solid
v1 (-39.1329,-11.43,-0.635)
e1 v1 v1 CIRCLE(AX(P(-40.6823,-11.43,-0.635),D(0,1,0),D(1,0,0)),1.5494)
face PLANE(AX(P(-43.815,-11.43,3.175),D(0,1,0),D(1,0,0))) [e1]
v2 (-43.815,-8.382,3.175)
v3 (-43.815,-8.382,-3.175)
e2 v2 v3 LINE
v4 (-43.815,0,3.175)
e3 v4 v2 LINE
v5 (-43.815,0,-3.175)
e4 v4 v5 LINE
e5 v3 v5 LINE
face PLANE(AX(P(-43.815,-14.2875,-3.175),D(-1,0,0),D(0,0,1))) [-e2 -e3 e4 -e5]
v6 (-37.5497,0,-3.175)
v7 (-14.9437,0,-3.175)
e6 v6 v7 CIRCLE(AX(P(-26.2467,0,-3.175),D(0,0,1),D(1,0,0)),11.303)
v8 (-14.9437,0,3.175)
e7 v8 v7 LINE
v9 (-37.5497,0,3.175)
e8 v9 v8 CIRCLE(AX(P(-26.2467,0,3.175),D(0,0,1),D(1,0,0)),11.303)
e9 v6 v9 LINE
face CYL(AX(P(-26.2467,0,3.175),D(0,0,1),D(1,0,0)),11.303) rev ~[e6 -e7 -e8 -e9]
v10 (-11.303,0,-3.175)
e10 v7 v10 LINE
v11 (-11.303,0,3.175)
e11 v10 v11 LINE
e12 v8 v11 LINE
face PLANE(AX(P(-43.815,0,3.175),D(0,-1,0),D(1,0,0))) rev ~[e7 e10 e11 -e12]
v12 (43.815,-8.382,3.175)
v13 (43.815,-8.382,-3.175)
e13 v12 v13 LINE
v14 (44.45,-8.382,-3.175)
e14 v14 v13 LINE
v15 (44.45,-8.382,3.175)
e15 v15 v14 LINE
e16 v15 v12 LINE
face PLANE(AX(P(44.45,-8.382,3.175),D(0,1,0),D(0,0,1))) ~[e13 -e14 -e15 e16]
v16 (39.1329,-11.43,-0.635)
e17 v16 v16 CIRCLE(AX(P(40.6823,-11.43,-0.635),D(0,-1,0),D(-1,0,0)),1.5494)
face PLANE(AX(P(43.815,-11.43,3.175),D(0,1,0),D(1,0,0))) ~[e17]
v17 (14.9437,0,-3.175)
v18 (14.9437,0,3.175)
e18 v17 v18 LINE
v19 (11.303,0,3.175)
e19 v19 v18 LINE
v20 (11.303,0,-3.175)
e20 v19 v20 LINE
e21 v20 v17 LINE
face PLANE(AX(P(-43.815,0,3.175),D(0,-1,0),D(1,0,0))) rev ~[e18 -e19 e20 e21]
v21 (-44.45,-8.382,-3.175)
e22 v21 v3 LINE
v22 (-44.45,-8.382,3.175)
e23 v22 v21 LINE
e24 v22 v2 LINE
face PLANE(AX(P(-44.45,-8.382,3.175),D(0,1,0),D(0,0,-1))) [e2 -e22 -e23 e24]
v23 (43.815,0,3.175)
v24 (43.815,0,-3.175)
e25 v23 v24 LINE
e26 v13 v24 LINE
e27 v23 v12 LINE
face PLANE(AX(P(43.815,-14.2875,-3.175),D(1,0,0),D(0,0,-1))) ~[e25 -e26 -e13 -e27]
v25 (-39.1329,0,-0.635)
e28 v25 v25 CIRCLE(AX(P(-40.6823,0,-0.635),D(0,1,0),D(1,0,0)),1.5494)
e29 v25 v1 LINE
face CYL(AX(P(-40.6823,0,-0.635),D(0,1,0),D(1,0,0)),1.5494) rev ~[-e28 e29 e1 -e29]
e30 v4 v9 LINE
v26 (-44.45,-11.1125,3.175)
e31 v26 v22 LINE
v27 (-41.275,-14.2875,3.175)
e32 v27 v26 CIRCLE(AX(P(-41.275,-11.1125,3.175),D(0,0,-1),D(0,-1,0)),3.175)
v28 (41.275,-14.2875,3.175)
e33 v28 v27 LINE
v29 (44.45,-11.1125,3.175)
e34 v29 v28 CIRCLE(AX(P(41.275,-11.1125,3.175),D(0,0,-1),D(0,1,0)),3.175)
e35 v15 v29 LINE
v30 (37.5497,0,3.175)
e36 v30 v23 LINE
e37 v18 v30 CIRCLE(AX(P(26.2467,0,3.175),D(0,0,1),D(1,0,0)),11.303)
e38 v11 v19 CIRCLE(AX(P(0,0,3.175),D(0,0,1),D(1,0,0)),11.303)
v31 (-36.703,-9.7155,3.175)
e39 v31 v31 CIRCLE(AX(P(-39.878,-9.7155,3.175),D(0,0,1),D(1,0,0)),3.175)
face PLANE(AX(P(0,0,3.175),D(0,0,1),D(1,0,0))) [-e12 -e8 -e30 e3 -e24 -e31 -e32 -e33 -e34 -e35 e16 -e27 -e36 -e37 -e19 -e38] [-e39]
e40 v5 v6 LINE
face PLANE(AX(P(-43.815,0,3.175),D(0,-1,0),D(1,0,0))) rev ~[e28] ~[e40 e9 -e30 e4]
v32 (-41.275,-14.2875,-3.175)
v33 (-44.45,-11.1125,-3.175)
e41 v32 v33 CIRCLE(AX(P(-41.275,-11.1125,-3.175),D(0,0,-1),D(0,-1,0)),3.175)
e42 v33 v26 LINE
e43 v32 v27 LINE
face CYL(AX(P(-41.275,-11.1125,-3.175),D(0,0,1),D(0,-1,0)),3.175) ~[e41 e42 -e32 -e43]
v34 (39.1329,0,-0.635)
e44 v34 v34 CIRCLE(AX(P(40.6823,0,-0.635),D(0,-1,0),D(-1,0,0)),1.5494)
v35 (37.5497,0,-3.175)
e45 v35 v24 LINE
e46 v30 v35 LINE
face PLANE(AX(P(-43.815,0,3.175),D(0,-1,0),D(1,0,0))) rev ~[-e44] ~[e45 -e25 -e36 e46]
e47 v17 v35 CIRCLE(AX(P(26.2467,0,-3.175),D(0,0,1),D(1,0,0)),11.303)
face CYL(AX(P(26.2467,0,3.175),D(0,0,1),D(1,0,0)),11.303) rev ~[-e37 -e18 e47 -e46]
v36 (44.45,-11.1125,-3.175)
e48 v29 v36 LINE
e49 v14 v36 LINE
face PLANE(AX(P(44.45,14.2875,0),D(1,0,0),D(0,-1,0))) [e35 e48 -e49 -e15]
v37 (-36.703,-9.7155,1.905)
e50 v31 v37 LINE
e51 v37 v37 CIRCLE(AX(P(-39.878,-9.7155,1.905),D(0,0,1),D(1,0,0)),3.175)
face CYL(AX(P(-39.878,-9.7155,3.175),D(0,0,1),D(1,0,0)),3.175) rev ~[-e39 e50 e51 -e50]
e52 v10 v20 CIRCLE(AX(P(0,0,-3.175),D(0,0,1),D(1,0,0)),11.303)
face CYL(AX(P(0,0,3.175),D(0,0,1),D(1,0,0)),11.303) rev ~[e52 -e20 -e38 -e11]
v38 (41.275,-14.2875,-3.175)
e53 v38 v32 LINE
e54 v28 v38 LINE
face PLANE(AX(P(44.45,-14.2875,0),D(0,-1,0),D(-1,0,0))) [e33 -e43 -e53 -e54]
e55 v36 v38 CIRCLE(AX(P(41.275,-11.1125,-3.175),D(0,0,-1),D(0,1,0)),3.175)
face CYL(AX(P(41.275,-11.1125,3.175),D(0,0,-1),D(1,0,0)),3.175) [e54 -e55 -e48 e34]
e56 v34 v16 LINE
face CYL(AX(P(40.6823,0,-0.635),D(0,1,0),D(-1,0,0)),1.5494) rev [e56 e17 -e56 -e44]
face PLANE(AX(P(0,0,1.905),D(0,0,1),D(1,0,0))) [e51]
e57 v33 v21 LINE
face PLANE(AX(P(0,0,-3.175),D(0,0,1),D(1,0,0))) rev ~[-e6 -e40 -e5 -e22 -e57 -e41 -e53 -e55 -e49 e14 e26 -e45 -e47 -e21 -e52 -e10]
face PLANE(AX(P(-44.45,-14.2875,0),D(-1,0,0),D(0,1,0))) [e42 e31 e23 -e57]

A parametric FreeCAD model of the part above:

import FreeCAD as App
import Part
import Sketcher
Q = App.Units.Quantity


def edges_at(feature, points):
    """Names of the edges that pass closest to the given points."""
    edges = feature.Shape.Edges
    near = lambda p: min(range(len(edges)), key=lambda i: edges[i].distToShape(Part.Vertex(*p))[0])
    return sorted({f"Edge{near(p) + 1}" for p in points})

doc = App.newDocument("Part")
body = doc.addObject("PartDesign::Body", "Body")

sketch1 = body.newObject("Sketcher::SketchObject", "Sketch")
sketch1.AttachmentSupport = (doc.getObject("XY_Plane"), [""])
sketch1.MapMode = "FlatFace"
sketch1.addGeometry([
    Part.LineSegment(App.Vector(44.45, 14.2875, 0), App.Vector(-44.45, 14.2875, 0)),
    Part.LineSegment(App.Vector(-44.45, 14.2875, 0), App.Vector(-44.45, -14.2875, 0)),
    Part.LineSegment(App.Vector(-44.45, -14.2875, 0), App.Vector(44.45, -14.2875, 0)),
    Part.LineSegment(App.Vector(44.45, -14.2875, 0), App.Vector(44.45, 14.2875, 0)),
], False)
sketch1.addConstraint([
    Sketcher.Constraint("Coincident", 0, 2, 1, 1),
    Sketcher.Constraint("Coincident", 1, 2, 2, 1),
    Sketcher.Constraint("Coincident", 2, 2, 3, 1),
    Sketcher.Constraint("Coincident", 3, 2, 0, 1),
    Sketcher.Constraint("Horizontal", 0),
    Sketcher.Constraint("Vertical", 1),
    Sketcher.Constraint("Horizontal", 2),
    Sketcher.Constraint("Vertical", 3),
    Sketcher.Constraint("Symmetric", 0, 2, 2, 2, -1, 1),
    Sketcher.Constraint("DistanceX", 0, 2, 0, 1, Q("3.5 in")),
    Sketcher.Constraint("DistanceY", 1, 2, 1, 1, Q("1.125 in")),
])
pad1 = body.newObject("PartDesign::Pad", "Pad")
pad1.Profile = sketch1
pad1.Length = Q("0.25 in")
pad1.Midplane = True

sketch2 = body.newObject("Sketcher::SketchObject", "Sketch001")
sketch2.AttachmentSupport = (doc.getObject("YZ_Plane"), [""])
sketch2.MapMode = "FlatFace"
sketch2.AttachmentOffset = App.Placement(App.Vector(0, 0, -1.75 * 25.4), App.Rotation())
sketch2.addGeometry([
    Part.LineSegment(App.Vector(8.382, -3.175, 0), App.Vector(-8.382, -3.175, 0)),
    Part.LineSegment(App.Vector(-8.382, -3.175, 0), App.Vector(-8.382, 3.175, 0)),
    Part.LineSegment(App.Vector(-8.382, 3.175, 0), App.Vector(8.382, 3.175, 0)),
    Part.LineSegment(App.Vector(8.382, 3.175, 0), App.Vector(8.382, -3.175, 0)),
], False)
sketch2.addConstraint([
    Sketcher.Constraint("Coincident", 0, 2, 1, 1),
    Sketcher.Constraint("Coincident", 1, 2, 2, 1),
    Sketcher.Constraint("Coincident", 2, 2, 3, 1),
    Sketcher.Constraint("Coincident", 3, 2, 0, 1),
    Sketcher.Constraint("Horizontal", 0),
    Sketcher.Constraint("Vertical", 1),
    Sketcher.Constraint("Horizontal", 2),
    Sketcher.Constraint("Vertical", 3),
    Sketcher.Constraint("Symmetric", 0, 2, 2, 2, -1, 1),
    Sketcher.Constraint("DistanceX", 0, 2, 0, 1, Q("0.66 in")),
    Sketcher.Constraint("DistanceY", 1, 1, 1, 2, Q("0.25 in")),
])
pocket1 = body.newObject("PartDesign::Pocket", "Pocket")
pocket1.Profile = sketch2
pocket1.Length = Q("0.025 in")
pocket1.Reversed = True
doc.recompute()

mirrored = body.newObject("PartDesign::Mirrored", "Mirrored")
mirrored.Originals = [pocket1]
mirrored.MirrorPlane = (doc.getObject("YZ_Plane"), [""])
body.Tip = mirrored

sketch3 = body.newObject("Sketcher::SketchObject", "Sketch002")
sketch3.AttachmentSupport = (doc.getObject("XY_Plane"), [""])
sketch3.MapMode = "FlatFace"
sketch3.AttachmentOffset = App.Placement(App.Vector(0, 0, 0.125 * 25.4), App.Rotation())
sketch3.addGeometry([
    Part.Circle(App.Vector(39.878, 9.7155, 0), App.Vector(0, 0, 1), 3.175),
    Part.Circle(App.Vector(-39.878, -9.7155, 0), App.Vector(0, 0, 1), 3.175),
], False)
sketch3.addConstraint([
    Sketcher.Constraint("Equal", 0, 1),
    Sketcher.Constraint("Symmetric", 0, 3, 1, 3, -1, 1),
    Sketcher.Constraint("Diameter", 0, Q("0.25 in")),
    Sketcher.Constraint("DistanceX", -1, 1, 0, 3, Q("1.57 in")),
    Sketcher.Constraint("DistanceY", 1, 3, 0, 3, Q("0.765 in")),
])
pocket2 = body.newObject("PartDesign::Pocket", "Pocket001")
pocket2.Profile = sketch3
pocket2.Length = Q("0.05 in")

sketch4 = body.newObject("Sketcher::SketchObject", "Sketch003")
sketch4.AttachmentSupport = (doc.getObject("XY_Plane"), [""])
sketch4.MapMode = "FlatFace"
sketch4.AttachmentOffset = App.Placement(App.Vector(0, 0, -0.125 * 25.4), App.Rotation())
sketch4.addGeometry([
    Part.LineSegment(App.Vector(15.6718, 52.3875, 0), App.Vector(15.6718, 14.2875, 0)),
    Part.LineSegment(App.Vector(15.6718, 14.2875, 0), App.Vector(-15.6718, 14.2875, 0)),
    Part.LineSegment(App.Vector(-15.6718, 14.2875, 0), App.Vector(-15.6718, 52.3875, 0)),
    Part.LineSegment(App.Vector(-15.6718, 52.3875, 0), App.Vector(15.6718, 52.3875, 0)),
], False)
sketch4.addConstraint([
    Sketcher.Constraint("Coincident", 0, 2, 1, 1),
    Sketcher.Constraint("Coincident", 1, 2, 2, 1),
    Sketcher.Constraint("Coincident", 2, 2, 3, 1),
    Sketcher.Constraint("Coincident", 3, 2, 0, 1),
    Sketcher.Constraint("Vertical", 0),
    Sketcher.Constraint("Horizontal", 1),
    Sketcher.Constraint("Vertical", 2),
    Sketcher.Constraint("Horizontal", 3),
    Sketcher.Constraint("DistanceY", 0, 2, 0, 1, Q("1.5 in")),
    Sketcher.Constraint("DistanceX", 1, 2, 1, 1, Q("1.234 in")),
    Sketcher.Constraint("DistanceX", -1, 1, 0, 2, Q("0.617 in")),
    Sketcher.Constraint("DistanceY", -1, 1, 0, 2, Q("0.5625 in")),
])
pad2 = body.newObject("PartDesign::Pad", "Pad001")
pad2.Profile = sketch4
pad2.Length = Q("0.25 in")

sketch5 = body.newObject("Sketcher::SketchObject", "Sketch004")
sketch5.AttachmentSupport = (doc.getObject("XY_Plane"), [""])
sketch5.MapMode = "FlatFace"
sketch5.AttachmentOffset = App.Placement(App.Vector(0, 0, 0.125 * 25.4), App.Rotation())
sketch5.addGeometry([
    Part.Circle(App.Vector(-26.2467, 0, 0), App.Vector(0, 0, 1), 11.303),
    Part.Circle(App.Vector(0, 0, 0), App.Vector(0, 0, 1), 11.303),
    Part.Circle(App.Vector(26.2467, 0, 0), App.Vector(0, 0, 1), 11.303),
], False)
sketch5.addConstraint([
    Sketcher.Constraint("Coincident", 1, 3, -1, 1),
    Sketcher.Constraint("Equal", 0, 1),
    Sketcher.Constraint("Equal", 1, 2),
    Sketcher.Constraint("Symmetric", 0, 3, 2, 3, -1, 1),
    Sketcher.Constraint("PointOnObject", 0, 3, -1),
    Sketcher.Constraint("Diameter", 0, Q("0.89 in")),
    Sketcher.Constraint("DistanceX", 0, 3, -1, 1, Q("26.2467 mm")),
])
pocket3 = body.newObject("PartDesign::Pocket", "Pocket002")
pocket3.Profile = sketch5
pocket3.Length = Q("1 in")

sketch6 = body.newObject("Sketcher::SketchObject", "Sketch005")
sketch6.AttachmentSupport = (doc.getObject("XZ_Plane"), [""])
sketch6.MapMode = "FlatFace"
sketch6.AttachmentOffset = App.Placement(App.Vector(0, 0, -2.0625 * 25.4), App.Rotation())
sketch6.addGeometry([
    Part.LineSegment(App.Vector(-12.5, 0, 0), App.Vector(-12.5, 3.175, 0)),
    Part.LineSegment(App.Vector(-12.5, 3.175, 0), App.Vector(12.5, 3.175, 0)),
    Part.LineSegment(App.Vector(12.5, 3.175, 0), App.Vector(12.5, 0, 0)),
    Part.LineSegment(App.Vector(12.5, 0, 0), App.Vector(-12.5, 0, 0)),
], False)
sketch6.addConstraint([
    Sketcher.Constraint("Coincident", 0, 2, 1, 1),
    Sketcher.Constraint("Coincident", 1, 2, 2, 1),
    Sketcher.Constraint("Coincident", 2, 2, 3, 1),
    Sketcher.Constraint("Coincident", 3, 2, 0, 1),
    Sketcher.Constraint("Vertical", 0),
    Sketcher.Constraint("Horizontal", 1),
    Sketcher.Constraint("Vertical", 2),
    Sketcher.Constraint("Horizontal", 3),
    Sketcher.Constraint("Symmetric", 2, 2, 3, 2, -1, 1),
    Sketcher.Constraint("DistanceY", 0, 1, 0, 2, Q("0.125 in")),
    Sketcher.Constraint("DistanceX", 1, 1, 1, 2, Q("25 mm")),
])
pocket4 = body.newObject("PartDesign::Pocket", "Pocket003")
pocket4.Profile = sketch6
pocket4.Length = 0.9
pocket4.Reversed = True

sketch7 = body.newObject("Sketcher::SketchObject", "Sketch006")
sketch7.AttachmentSupport = (doc.getObject("XY_Plane"), [""])
sketch7.MapMode = "FlatFace"
sketch7.AttachmentOffset = App.Placement(App.Vector(0, 0, 0.125 * 25.4), App.Rotation())
sketch7.addGeometry([
    Part.LineSegment(App.Vector(15.6718, 52.3875, 0), App.Vector(-15.6718, 52.3875, 0)),
    Part.LineSegment(App.Vector(-15.6718, 52.3875, 0), App.Vector(-15.6718, 14.2875, 0)),
    Part.LineSegment(App.Vector(-15.6718, 14.2875, 0), App.Vector(-44.45, 14.2875, 0)),
    Part.LineSegment(App.Vector(-44.45, 14.2875, 0), App.Vector(-44.45, 8.382, 0)),
    Part.LineSegment(App.Vector(-44.45, 8.382, 0), App.Vector(-43.815, 8.382, 0)),
    Part.LineSegment(App.Vector(-43.815, 8.382, 0), App.Vector(-43.815, 0, 0)),
    Part.LineSegment(App.Vector(-43.815, 0, 0), App.Vector(43.815, 0, 0)),
    Part.LineSegment(App.Vector(43.815, 0, 0), App.Vector(43.815, 8.382, 0)),
    Part.LineSegment(App.Vector(43.815, 8.382, 0), App.Vector(44.45, 8.382, 0)),
    Part.LineSegment(App.Vector(44.45, 8.382, 0), App.Vector(44.45, 14.2875, 0)),
    Part.LineSegment(App.Vector(44.45, 14.2875, 0), App.Vector(15.6718, 14.2875, 0)),
    Part.LineSegment(App.Vector(15.6718, 14.2875, 0), App.Vector(15.6718, 52.3875, 0)),
], False)
sketch7.addConstraint([
    Sketcher.Constraint("Coincident", 0, 2, 1, 1),
    Sketcher.Constraint("Coincident", 1, 2, 2, 1),
    Sketcher.Constraint("Coincident", 2, 2, 3, 1),
    Sketcher.Constraint("Coincident", 3, 2, 4, 1),
    Sketcher.Constraint("Coincident", 4, 2, 5, 1),
    Sketcher.Constraint("Coincident", 5, 2, 6, 1),
    Sketcher.Constraint("Coincident", 6, 2, 7, 1),
    Sketcher.Constraint("Coincident", 7, 2, 8, 1),
    Sketcher.Constraint("Coincident", 8, 2, 9, 1),
    Sketcher.Constraint("Coincident", 9, 2, 10, 1),
    Sketcher.Constraint("Coincident", 10, 2, 11, 1),
    Sketcher.Constraint("Coincident", 11, 2, 0, 1),
    Sketcher.Constraint("Horizontal", 0),
    Sketcher.Constraint("Vertical", 1),
    Sketcher.Constraint("Horizontal", 2),
    Sketcher.Constraint("Vertical", 3),
    Sketcher.Constraint("Horizontal", 4),
    Sketcher.Constraint("Vertical", 5),
    Sketcher.Constraint("Horizontal", 6),
    Sketcher.Constraint("Vertical", 7),
    Sketcher.Constraint("Horizontal", 8),
    Sketcher.Constraint("Vertical", 9),
    Sketcher.Constraint("Horizontal", 10),
    Sketcher.Constraint("Vertical", 11),
    Sketcher.Constraint("Symmetric", 5, 2, 6, 2, -1, 1),
    Sketcher.Constraint("Symmetric", 3, 2, 8, 2, -2),
    Sketcher.Constraint("Symmetric", 1, 2, 10, 2, -2),
    Sketcher.Constraint("DistanceY", 1, 2, 1, 1, Q("1.5 in")),
    Sketcher.Constraint("DistanceX", 6, 1, 6, 2, Q("3.45 in")),
    Sketcher.Constraint("DistanceY", 5, 2, 5, 1, Q("0.33 in")),
    Sketcher.Constraint("DistanceX", 0, 2, 0, 1, Q("1.234 in")),
    Sketcher.Constraint("DistanceX", 2, 2, 2, 1, Q("1.133 in")),
    Sketcher.Constraint("DistanceY", 3, 2, 3, 1, Q("0.2325 in")),
])
pocket5 = body.newObject("PartDesign::Pocket", "Pocket004")
pocket5.Profile = sketch7
pocket5.Type = "ThroughAll"

sketch8 = body.newObject("Sketcher::SketchObject", "Sketch007")
sketch8.AttachmentSupport = (doc.getObject("XZ_Plane"), [""])
sketch8.MapMode = "FlatFace"
sketch8.addGeometry(Part.Circle(App.Vector(-40.6823, -0.635, 0), App.Vector(0, 0, 1), 1.5494), False)
sketch8.addConstraint([
    Sketcher.Constraint("Diameter", 0, Q("0.122 in")),
    Sketcher.Constraint("DistanceY", 0, 3, -1, 1, Q("0.025 in")),
    Sketcher.Constraint("DistanceX", 0, 3, -1, 1, Q("40.6823 mm")),
])
pocket6 = body.newObject("PartDesign::Pocket", "Pocket005")
pocket6.Profile = sketch8
pocket6.Length = Q("0.45 in")
pocket6.Reversed = True
doc.recompute()

mirrored2 = body.newObject("PartDesign::Mirrored", "Mirrored001")
mirrored2.Originals = [pocket6]
mirrored2.MirrorPlane = (doc.getObject("YZ_Plane"), [""])
body.Tip = mirrored2
doc.recompute()

fillet = body.newObject("PartDesign::Fillet", "Fillet")
fillet.Base = (mirrored2, edges_at(mirrored2, [(44.45, -14.287, 0), (-44.45, -14.287, 0)]))
fillet.Radius = Q("0.125 in")

doc.recompute()
